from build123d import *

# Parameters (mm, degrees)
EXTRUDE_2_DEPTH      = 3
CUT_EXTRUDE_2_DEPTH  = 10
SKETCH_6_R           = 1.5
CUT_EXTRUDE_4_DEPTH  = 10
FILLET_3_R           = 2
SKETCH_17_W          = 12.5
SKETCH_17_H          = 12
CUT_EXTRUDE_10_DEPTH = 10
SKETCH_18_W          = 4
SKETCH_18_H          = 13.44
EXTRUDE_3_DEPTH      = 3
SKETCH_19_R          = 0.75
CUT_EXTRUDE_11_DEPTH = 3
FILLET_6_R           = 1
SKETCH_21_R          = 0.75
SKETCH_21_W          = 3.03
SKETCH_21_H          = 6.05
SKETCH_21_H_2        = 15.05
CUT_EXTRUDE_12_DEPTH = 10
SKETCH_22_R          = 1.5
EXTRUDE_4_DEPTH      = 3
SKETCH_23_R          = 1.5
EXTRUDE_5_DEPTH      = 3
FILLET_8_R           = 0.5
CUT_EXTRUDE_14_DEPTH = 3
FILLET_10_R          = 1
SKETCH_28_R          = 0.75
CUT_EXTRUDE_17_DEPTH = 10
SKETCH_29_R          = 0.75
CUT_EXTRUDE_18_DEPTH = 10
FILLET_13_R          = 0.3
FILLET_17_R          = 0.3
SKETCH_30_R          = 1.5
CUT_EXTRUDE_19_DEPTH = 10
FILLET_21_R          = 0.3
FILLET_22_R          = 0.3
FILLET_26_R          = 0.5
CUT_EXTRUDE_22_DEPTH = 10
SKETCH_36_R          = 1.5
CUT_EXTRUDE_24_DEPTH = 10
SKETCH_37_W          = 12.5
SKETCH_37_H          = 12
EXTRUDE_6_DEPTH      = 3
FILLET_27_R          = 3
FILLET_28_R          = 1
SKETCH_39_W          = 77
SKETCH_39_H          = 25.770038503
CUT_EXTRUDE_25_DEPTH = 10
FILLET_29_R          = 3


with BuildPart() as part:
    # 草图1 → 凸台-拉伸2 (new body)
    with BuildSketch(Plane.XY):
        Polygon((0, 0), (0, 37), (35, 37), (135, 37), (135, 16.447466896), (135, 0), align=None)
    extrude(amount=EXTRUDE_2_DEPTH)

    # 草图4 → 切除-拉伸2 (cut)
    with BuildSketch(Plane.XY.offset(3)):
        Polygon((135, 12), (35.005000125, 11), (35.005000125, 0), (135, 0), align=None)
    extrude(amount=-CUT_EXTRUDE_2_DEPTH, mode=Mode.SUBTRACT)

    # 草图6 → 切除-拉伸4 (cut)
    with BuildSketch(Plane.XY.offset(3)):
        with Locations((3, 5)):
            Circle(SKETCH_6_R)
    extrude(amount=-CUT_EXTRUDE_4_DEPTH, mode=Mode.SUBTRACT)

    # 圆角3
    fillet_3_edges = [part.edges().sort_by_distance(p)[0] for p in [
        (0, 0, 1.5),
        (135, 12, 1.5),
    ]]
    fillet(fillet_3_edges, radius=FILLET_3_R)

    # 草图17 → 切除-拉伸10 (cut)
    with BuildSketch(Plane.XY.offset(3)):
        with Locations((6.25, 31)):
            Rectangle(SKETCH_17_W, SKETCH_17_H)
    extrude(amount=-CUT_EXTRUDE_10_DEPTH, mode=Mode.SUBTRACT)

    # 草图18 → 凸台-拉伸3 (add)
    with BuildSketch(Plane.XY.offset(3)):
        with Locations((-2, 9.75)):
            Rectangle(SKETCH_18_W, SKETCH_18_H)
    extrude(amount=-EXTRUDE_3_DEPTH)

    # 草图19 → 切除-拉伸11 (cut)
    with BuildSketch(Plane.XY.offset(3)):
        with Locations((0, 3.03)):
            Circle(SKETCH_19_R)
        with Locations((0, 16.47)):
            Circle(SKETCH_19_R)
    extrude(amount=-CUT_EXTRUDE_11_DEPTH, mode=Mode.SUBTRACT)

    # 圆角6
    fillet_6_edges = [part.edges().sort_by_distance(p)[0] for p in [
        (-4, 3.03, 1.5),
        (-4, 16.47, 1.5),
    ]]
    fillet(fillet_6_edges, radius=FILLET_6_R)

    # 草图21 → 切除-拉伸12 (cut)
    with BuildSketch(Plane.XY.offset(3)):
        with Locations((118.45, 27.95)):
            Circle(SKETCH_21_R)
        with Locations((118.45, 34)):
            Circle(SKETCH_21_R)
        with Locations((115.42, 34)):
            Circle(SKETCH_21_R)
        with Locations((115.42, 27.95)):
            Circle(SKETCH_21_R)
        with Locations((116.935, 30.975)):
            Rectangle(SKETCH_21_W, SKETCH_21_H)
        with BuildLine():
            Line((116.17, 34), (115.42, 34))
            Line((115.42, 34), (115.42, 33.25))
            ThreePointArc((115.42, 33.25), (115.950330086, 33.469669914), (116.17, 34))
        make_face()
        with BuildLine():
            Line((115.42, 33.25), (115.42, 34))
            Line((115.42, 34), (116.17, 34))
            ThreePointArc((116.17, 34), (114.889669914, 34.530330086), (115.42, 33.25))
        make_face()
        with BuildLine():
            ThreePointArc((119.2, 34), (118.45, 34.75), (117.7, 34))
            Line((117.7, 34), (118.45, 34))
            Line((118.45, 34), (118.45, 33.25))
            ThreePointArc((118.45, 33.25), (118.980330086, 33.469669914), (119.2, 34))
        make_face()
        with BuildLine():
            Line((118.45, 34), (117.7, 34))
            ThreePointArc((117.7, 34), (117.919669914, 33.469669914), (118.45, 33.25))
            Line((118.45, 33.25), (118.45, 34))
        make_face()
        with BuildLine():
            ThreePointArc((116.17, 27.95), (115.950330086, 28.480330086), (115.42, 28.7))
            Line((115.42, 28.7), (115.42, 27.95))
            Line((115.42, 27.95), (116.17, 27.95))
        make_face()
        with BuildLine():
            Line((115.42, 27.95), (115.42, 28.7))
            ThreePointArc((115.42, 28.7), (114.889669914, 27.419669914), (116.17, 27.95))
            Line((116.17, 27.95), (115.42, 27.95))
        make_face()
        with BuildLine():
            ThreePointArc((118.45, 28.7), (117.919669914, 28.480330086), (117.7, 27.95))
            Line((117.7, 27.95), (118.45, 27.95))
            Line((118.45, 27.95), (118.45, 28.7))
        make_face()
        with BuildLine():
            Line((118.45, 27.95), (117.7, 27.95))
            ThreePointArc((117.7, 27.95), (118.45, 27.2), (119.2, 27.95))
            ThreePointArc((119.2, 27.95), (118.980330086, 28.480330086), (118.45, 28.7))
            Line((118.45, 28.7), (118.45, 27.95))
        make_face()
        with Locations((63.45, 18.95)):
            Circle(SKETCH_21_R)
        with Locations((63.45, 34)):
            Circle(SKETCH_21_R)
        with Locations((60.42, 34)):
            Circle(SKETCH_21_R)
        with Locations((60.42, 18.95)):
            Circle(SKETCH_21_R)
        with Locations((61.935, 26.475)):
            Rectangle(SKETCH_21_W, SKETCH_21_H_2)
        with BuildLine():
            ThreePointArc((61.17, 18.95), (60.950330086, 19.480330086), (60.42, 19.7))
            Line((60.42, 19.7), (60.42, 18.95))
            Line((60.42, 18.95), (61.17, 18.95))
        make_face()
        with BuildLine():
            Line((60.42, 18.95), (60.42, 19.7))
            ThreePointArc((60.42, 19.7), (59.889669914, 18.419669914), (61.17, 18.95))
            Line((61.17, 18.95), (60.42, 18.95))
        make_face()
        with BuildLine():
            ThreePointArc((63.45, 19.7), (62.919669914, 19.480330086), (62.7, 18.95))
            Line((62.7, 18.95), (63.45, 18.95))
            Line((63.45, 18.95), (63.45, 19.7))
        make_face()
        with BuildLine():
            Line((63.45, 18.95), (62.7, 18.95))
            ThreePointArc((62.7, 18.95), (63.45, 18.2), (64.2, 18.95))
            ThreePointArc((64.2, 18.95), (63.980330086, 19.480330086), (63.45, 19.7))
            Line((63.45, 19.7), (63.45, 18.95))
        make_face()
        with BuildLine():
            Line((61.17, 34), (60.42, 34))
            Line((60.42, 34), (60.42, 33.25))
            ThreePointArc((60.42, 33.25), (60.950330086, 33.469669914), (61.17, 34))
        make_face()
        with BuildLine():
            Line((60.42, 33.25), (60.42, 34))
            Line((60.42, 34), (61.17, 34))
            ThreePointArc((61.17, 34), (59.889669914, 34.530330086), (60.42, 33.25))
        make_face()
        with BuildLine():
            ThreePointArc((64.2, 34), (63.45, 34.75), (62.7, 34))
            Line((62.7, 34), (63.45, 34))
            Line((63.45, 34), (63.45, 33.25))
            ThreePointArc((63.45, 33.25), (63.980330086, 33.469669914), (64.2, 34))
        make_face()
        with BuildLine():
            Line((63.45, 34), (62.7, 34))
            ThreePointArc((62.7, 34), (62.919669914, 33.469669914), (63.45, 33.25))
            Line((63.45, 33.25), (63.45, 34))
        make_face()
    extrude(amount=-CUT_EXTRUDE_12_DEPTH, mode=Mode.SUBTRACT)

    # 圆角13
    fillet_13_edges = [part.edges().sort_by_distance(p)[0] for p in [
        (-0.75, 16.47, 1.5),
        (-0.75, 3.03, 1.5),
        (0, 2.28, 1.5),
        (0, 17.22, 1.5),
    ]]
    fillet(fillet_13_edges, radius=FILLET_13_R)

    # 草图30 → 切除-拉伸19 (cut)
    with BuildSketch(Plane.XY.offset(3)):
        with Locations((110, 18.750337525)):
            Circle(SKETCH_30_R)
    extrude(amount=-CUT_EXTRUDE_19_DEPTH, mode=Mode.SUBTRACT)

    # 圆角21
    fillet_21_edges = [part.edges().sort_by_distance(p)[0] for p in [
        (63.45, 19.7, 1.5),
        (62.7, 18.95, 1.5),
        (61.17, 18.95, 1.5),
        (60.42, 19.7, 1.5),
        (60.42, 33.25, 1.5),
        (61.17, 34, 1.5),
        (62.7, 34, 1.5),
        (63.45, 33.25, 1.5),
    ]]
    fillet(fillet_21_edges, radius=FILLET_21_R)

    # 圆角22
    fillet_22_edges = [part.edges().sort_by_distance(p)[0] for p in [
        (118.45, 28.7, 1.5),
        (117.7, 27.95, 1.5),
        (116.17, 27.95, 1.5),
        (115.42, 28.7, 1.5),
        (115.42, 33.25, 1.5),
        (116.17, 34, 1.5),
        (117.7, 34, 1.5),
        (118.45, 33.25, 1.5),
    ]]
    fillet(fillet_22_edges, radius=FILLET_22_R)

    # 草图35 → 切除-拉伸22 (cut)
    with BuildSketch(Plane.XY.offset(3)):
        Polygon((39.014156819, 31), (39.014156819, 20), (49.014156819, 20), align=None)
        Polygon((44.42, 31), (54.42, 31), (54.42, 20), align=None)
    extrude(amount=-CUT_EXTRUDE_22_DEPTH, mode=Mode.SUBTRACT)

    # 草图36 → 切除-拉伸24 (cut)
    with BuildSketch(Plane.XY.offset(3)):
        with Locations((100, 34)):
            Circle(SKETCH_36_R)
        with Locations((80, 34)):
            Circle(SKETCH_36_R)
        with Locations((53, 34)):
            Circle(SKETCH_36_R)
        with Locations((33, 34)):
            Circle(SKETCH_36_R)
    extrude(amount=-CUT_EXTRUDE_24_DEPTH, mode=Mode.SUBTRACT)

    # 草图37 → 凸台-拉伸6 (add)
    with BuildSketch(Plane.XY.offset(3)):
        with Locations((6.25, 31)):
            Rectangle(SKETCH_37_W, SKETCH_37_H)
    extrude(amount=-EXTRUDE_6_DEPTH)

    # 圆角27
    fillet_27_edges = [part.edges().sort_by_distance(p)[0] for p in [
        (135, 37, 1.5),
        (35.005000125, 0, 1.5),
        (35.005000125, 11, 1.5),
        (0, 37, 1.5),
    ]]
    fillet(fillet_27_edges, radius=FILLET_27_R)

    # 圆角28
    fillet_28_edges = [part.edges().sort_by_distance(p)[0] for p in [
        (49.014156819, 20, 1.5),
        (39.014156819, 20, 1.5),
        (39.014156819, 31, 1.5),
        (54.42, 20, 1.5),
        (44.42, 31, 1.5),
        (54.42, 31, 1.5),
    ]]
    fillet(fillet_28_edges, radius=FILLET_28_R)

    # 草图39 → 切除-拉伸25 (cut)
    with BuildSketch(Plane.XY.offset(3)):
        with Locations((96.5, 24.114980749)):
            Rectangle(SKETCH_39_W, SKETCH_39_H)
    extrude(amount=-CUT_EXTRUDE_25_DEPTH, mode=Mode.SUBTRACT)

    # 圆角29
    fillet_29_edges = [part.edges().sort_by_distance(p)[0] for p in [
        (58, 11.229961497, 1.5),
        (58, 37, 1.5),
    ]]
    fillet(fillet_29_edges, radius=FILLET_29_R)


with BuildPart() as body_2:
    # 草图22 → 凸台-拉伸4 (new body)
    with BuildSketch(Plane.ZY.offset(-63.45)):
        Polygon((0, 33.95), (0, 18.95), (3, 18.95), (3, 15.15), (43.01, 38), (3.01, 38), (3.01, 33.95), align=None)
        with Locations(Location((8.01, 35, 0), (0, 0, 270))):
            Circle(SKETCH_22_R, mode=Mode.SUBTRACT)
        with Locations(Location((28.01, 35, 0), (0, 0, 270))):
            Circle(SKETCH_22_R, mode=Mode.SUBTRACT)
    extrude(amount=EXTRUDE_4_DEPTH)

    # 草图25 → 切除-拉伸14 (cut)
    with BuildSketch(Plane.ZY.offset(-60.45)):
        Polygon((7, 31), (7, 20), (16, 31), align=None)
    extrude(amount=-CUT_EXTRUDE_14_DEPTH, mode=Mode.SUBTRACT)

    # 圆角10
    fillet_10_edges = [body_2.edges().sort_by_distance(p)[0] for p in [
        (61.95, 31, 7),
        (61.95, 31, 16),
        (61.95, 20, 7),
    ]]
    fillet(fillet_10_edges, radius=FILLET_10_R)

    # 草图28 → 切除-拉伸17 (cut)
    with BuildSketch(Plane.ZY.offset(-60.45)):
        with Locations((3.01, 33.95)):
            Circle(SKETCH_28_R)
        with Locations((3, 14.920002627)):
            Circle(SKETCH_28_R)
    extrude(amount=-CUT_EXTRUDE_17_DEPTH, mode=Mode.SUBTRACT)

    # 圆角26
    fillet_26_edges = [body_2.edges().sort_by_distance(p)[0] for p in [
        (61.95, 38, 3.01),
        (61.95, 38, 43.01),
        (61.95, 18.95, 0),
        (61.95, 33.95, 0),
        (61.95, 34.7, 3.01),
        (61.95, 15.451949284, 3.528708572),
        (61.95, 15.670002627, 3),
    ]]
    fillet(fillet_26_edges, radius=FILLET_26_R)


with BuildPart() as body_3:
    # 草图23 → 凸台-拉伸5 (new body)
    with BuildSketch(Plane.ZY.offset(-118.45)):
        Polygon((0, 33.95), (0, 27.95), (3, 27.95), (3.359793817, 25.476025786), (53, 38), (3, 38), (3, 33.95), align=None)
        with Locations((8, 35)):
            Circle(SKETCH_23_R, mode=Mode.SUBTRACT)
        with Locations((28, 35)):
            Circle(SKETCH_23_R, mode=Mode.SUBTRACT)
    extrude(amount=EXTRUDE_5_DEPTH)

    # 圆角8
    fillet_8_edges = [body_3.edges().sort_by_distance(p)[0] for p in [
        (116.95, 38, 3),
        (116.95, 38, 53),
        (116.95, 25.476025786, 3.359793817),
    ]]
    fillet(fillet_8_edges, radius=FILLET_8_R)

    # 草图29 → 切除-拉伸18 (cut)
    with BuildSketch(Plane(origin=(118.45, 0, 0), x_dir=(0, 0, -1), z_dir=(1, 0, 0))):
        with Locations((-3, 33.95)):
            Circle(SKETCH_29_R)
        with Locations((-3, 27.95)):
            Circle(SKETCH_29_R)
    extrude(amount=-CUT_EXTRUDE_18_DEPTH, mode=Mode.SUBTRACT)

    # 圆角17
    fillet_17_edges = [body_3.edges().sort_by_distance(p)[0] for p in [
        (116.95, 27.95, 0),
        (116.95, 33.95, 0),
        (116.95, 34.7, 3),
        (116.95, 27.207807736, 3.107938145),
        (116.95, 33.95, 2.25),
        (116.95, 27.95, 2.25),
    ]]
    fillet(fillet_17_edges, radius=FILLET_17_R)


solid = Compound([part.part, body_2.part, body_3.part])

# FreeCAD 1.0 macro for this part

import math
import FreeCAD as App
import Part
import Sketcher
from FreeCAD import Vector


def edges_at(feature, points):
    """Names of the edges that pass closest to the given points."""
    edges = feature.Shape.Edges
    near = lambda p: min(range(len(edges)), key=lambda i: edges[i].distToShape(Part.Vertex(*p))[0])
    return sorted({f"Edge{near(p) + 1}" for p in points})

doc = App.newDocument("Part")
body = doc.addObject("PartDesign::Body", "Body")

# Sketch on XY plane
sketch1 = doc.addObject("Sketcher::SketchObject", "Sketch")
body.addObject(sketch1)
sketch1.AttachmentSupport = (doc.XY_Plane, [""])
sketch1.MapMode = "FlatFace"
sketch1.addGeometry([
    Part.LineSegment(Vector(0, 37, 0), Vector(0, 0, 0)),
    Part.LineSegment(Vector(0, 0, 0), Vector(135, 0, 0)),
    Part.LineSegment(Vector(135, 0, 0), Vector(135, 37, 0)),
    Part.LineSegment(Vector(135, 37, 0), Vector(0, 37, 0)),
], False)
sketch1.addConstraint([
    Sketcher.Constraint("Coincident", 0, 2, 1, 1),
    Sketcher.Constraint("Coincident", 1, 2, 2, 1),
    Sketcher.Constraint("Coincident", 2, 2, 3, 1),
    Sketcher.Constraint("Coincident", 3, 2, 0, 1),
    Sketcher.Constraint("Vertical", 0),
    Sketcher.Constraint("Horizontal", 1),
    Sketcher.Constraint("Vertical", 2),
    Sketcher.Constraint("Horizontal", 3),
    Sketcher.Constraint("Coincident", 0, 2, -1, 1),
    Sketcher.Constraint("DistanceX", 1, 1, 1, 2, 135.0),
    Sketcher.Constraint("DistanceY", 0, 2, 0, 1, 37.0),
])
pad1 = doc.addObject("PartDesign::Pad", "Pad")
body.addObject(pad1)
pad1.Profile = sketch1
pad1.Length = 3

# Sketch on XY plane
sketch2 = doc.addObject("Sketcher::SketchObject", "Sketch001")
body.addObject(sketch2)
sketch2.AttachmentSupport = (doc.XY_Plane, [""])
sketch2.MapMode = "FlatFace"
sketch2.AttachmentOffset = App.Placement(Vector(0, 0, 3), App.Rotation())
sketch2.addGeometry([
    Part.LineSegment(Vector(135, 12, 0), Vector(35, 11, 0)),
    Part.LineSegment(Vector(35, 11, 0), Vector(35, 0, 0)),
    Part.LineSegment(Vector(35, 0, 0), Vector(135, 0, 0)),
    Part.LineSegment(Vector(135, 0, 0), Vector(135, 12, 0)),
], False)
sketch2.addConstraint([
    Sketcher.Constraint("Coincident", 0, 2, 1, 1),
    Sketcher.Constraint("Coincident", 1, 2, 2, 1),
    Sketcher.Constraint("Coincident", 2, 2, 3, 1),
    Sketcher.Constraint("Coincident", 3, 2, 0, 1),
    Sketcher.Constraint("Vertical", 1),
    Sketcher.Constraint("Horizontal", 2),
    Sketcher.Constraint("Vertical", 3),
    Sketcher.Constraint("PointOnObject", 1, 2, -1),
    Sketcher.Constraint("DistanceY", 1, 2, 1, 1, 11.0),
    Sketcher.Constraint("DistanceY", 3, 1, 3, 2, 12.0),
    Sketcher.Constraint("Distance", 0, 100.0),
    Sketcher.Constraint("DistanceX", -1, 1, 2, 2, 135.0),
])
pocket1 = doc.addObject("PartDesign::Pocket", "Pocket")
body.addObject(pocket1)
pocket1.Profile = sketch2
pocket1.Length = 10

# Sketch on XY plane
sketch3 = doc.addObject("Sketcher::SketchObject", "Sketch002")
body.addObject(sketch3)
sketch3.AttachmentSupport = (doc.XY_Plane, [""])
sketch3.MapMode = "FlatFace"
sketch3.AttachmentOffset = App.Placement(Vector(0, 0, 3), App.Rotation())
sketch3.addGeometry(Part.Circle(Vector(3, 5, 0), Vector(0, 0, 1), 1.5), False)
sketch3.addConstraint([
    Sketcher.Constraint("Diameter", 0, 3.0),
    Sketcher.Constraint("DistanceX", -1, 1, 0, 3, 3.0),
    Sketcher.Constraint("DistanceY", -1, 1, 0, 3, 5.0),
])
pocket2 = doc.addObject("PartDesign::Pocket", "Pocket001")
body.addObject(pocket2)
pocket2.Profile = sketch3
pocket2.Length = 10
doc.recompute()

fillet = doc.addObject("PartDesign::Fillet", "Fillet")
body.addObject(fillet)
fillet.Base = (pocket2, edges_at(pocket2, [(0, 0, 1.5), (135, 12, 1.5)]))
fillet.Radius = 2

# Sketch on XY plane
sketch4 = doc.addObject("Sketcher::SketchObject", "Sketch003")
body.addObject(sketch4)
sketch4.AttachmentSupport = (doc.XY_Plane, [""])
sketch4.MapMode = "FlatFace"
sketch4.AttachmentOffset = App.Placement(Vector(0, 0, 3), App.Rotation())
sketch4.addGeometry([
    Part.LineSegment(Vector(0, 37, 0), Vector(0, 25, 0)),
    Part.LineSegment(Vector(0, 25, 0), Vector(12, 25, 0)),
    Part.LineSegment(Vector(12, 25, 0), Vector(12, 37, 0)),
    Part.LineSegment(Vector(12, 37, 0), Vector(0, 37, 0)),
], False)
sketch4.addConstraint([
    Sketcher.Constraint("Coincident", 0, 2, 1, 1),
    Sketcher.Constraint("Coincident", 1, 2, 2, 1),
    Sketcher.Constraint("Coincident", 2, 2, 3, 1),
    Sketcher.Constraint("Coincident", 3, 2, 0, 1),
    Sketcher.Constraint("Vertical", 0),
    Sketcher.Constraint("Horizontal", 1),
    Sketcher.Constraint("Vertical", 2),
    Sketcher.Constraint("Horizontal", 3),
    Sketcher.Constraint("PointOnObject", 0, 2, -2),
    Sketcher.Constraint("DistanceY", 0, 2, 0, 1, 12.0),
    Sketcher.Constraint("DistanceX", 1, 1, 1, 2, 12.5),
    Sketcher.Constraint("DistanceY", -1, 1, 0, 2, 25.0),
])
pocket3 = doc.addObject("PartDesign::Pocket", "Pocket002")
body.addObject(pocket3)
pocket3.Profile = sketch4
pocket3.Length = 10

# Sketch on XY plane
sketch5 = doc.addObject("Sketcher::SketchObject", "Sketch004")
body.addObject(sketch5)
sketch5.AttachmentSupport = (doc.XY_Plane, [""])
sketch5.MapMode = "FlatFace"
sketch5.AttachmentOffset = App.Placement(Vector(0, 0, 3), App.Rotation())
sketch5.addGeometry([
    Part.LineSegment(Vector(-4, 16.5, 0), Vector(-4, 3, 0)),
    Part.LineSegment(Vector(-4, 3, 0), Vector(0, 3, 0)),
    Part.LineSegment(Vector(0, 3, 0), Vector(0, 16.5, 0)),
    Part.LineSegment(Vector(0, 16.5, 0), Vector(-4, 16.5, 0)),
], False)
sketch5.addConstraint([
    Sketcher.Constraint("Coincident", 0, 2, 1, 1),
    Sketcher.Constraint("Coincident", 1, 2, 2, 1),
    Sketcher.Constraint("Coincident", 2, 2, 3, 1),
    Sketcher.Constraint("Coincident", 3, 2, 0, 1),
    Sketcher.Constraint("Vertical", 0),
    Sketcher.Constraint("Horizontal", 1),
    Sketcher.Constraint("Vertical", 2),
    Sketcher.Constraint("Horizontal", 3),
    Sketcher.Constraint("PointOnObject", 1, 2, -2),
    Sketcher.Constraint("DistanceX", 1, 1, 1, 2, 4.0),
    Sketcher.Constraint("DistanceY", 0, 2, 0, 1, 13.44),
    Sketcher.Constraint("DistanceY", -1, 1, 0, 2, 3.03),
])
pad2 = doc.addObject("PartDesign::Pad", "Pad001")
body.addObject(pad2)
pad2.Profile = sketch5
pad2.Length = 3
pad2.Reversed = True

# Sketch on XY plane
sketch6 = doc.addObject("Sketcher::SketchObject", "Sketch005")
body.addObject(sketch6)
sketch6.AttachmentSupport = (doc.XY_Plane, [""])
sketch6.MapMode = "FlatFace"
sketch6.AttachmentOffset = App.Placement(Vector(0, 0, 3), App.Rotation())
sketch6.addGeometry([
    Part.Circle(Vector(0, 3, 0), Vector(0, 0, 1), 0.8),
    Part.Circle(Vector(0, 16.5, 0), Vector(0, 0, 1), 0.8),
], False)
sketch6.addConstraint([
    Sketcher.Constraint("Equal", 0, 1),
    Sketcher.Constraint("PointOnObject", 0, 3, -2),
    Sketcher.Constraint("PointOnObject", 1, 3, -2),
    Sketcher.Constraint("Diameter", 0, 1.5),
    Sketcher.Constraint("DistanceY", -1, 1, 0, 3, 3.03),
    Sketcher.Constraint("DistanceY", -1, 1, 1, 3, 16.47),
])
pocket4 = doc.addObject("PartDesign::Pocket", "Pocket003")
body.addObject(pocket4)
pocket4.Profile = sketch6
pocket4.Length = 3
doc.recompute()

fillet2 = doc.addObject("PartDesign::Fillet", "Fillet001")
body.addObject(fillet2)
fillet2.Base = (pocket4, edges_at(pocket4, [(-4, 3.03, 1.5), (-4, 16.47, 1.5)]))
fillet2.Radius = 1

# Sketch on XY plane
sketch7 = doc.addObject("Sketcher::SketchObject", "Sketch006")
body.addObject(sketch7)
sketch7.AttachmentSupport = (doc.XY_Plane, [""])
sketch7.MapMode = "FlatFace"
sketch7.AttachmentOffset = App.Placement(Vector(0, 0, 3), App.Rotation())
sketch7.addGeometry([
    Part.LineSegment(Vector(115.4, 33.2, 0), Vector(115.4, 28.7, 0)),  # 0
    Part.ArcOfCircle(Part.Circle(Vector(115.4, 27.9, 0), Vector(0, 0, 1), 0.8), math.radians(90), math.radians(360)),  # 1
    Part.LineSegment(Vector(116.2, 27.9, 0), Vector(117.7, 27.9, 0)),  # 2
    Part.ArcOfCircle(Part.Circle(Vector(118.5, 27.9, 0), Vector(0, 0, 1), 0.8), math.radians(180), math.radians(450)),  # 3
    Part.LineSegment(Vector(118.5, 28.7, 0), Vector(118.5, 33.2, 0)),  # 4
    Part.ArcOfCircle(Part.Circle(Vector(118.5, 34, 0), Vector(0, 0, 1), 0.8), math.radians(-90), math.radians(180)),  # 5
    Part.LineSegment(Vector(117.7, 34, 0), Vector(116.2, 34, 0)),  # 6
    Part.ArcOfCircle(Part.Circle(Vector(115.4, 34, 0), Vector(0, 0, 1), 0.8), math.radians(0), math.radians(270)),  # 7
    Part.LineSegment(Vector(60.4, 33.2, 0), Vector(60.4, 19.7, 0)),  # 8
    Part.ArcOfCircle(Part.Circle(Vector(60.4, 18.9, 0), Vector(0, 0, 1), 0.8), math.radians(90), math.radians(360)),  # 9
    Part.LineSegment(Vector(61.2, 18.9, 0), Vector(62.7, 18.9, 0)),  # 10
    Part.ArcOfCircle(Part.Circle(Vector(63.5, 18.9, 0), Vector(0, 0, 1), 0.8), math.radians(180), math.radians(450)),  # 11
    Part.LineSegment(Vector(63.5, 19.7, 0), Vector(63.5, 33.2, 0)),  # 12
    Part.ArcOfCircle(Part.Circle(Vector(63.5, 34, 0), Vector(0, 0, 1), 0.8), math.radians(-90), math.radians(180)),  # 13
    Part.LineSegment(Vector(62.7, 34, 0), Vector(61.2, 34, 0)),  # 14
    Part.ArcOfCircle(Part.Circle(Vector(60.4, 34, 0), Vector(0, 0, 1), 0.8), math.radians(0), math.radians(270)),  # 15
], False)
sketch7.addConstraint([
    Sketcher.Constraint("Coincident", 0, 2, 1, 1),
    Sketcher.Constraint("Coincident", 1, 2, 2, 1),
    Sketcher.Constraint("Coincident", 2, 2, 3, 1),
    Sketcher.Constraint("Coincident", 3, 2, 4, 1),
    Sketcher.Constraint("Coincident", 4, 2, 5, 1),
    Sketcher.Constraint("Coincident", 5, 2, 6, 1),
    Sketcher.Constraint("Coincident", 6, 2, 7, 1),
    Sketcher.Constraint("Coincident", 7, 2, 0, 1),
    Sketcher.Constraint("Coincident", 8, 2, 9, 1),
    Sketcher.Constraint("Coincident", 9, 2, 10, 1),
    Sketcher.Constraint("Coincident", 10, 2, 11, 1),
    Sketcher.Constraint("Coincident", 11, 2, 12, 1),
    Sketcher.Constraint("Coincident", 12, 2, 13, 1),
    Sketcher.Constraint("Coincident", 13, 2, 14, 1),
    Sketcher.Constraint("Coincident", 14, 2, 15, 1),
    Sketcher.Constraint("Coincident", 15, 2, 8, 1),
    Sketcher.Constraint("Vertical", 0),
    Sketcher.Constraint("Horizontal", 2),
    Sketcher.Constraint("Vertical", 4),
    Sketcher.Constraint("Horizontal", 6),
    Sketcher.Constraint("Vertical", 8),
    Sketcher.Constraint("Horizontal", 10),
    Sketcher.Constraint("Vertical", 12),
    Sketcher.Constraint("Horizontal", 14),
    Sketcher.Constraint("Equal", 1, 3),
    Sketcher.Constraint("Equal", 3, 5),
    Sketcher.Constraint("Equal", 5, 7),
    Sketcher.Constraint("Equal", 7, 9),
    Sketcher.Constraint("Equal", 9, 11),
    Sketcher.Constraint("Equal", 11, 13),
    Sketcher.Constraint("Equal", 13, 15),
    Sketcher.Constraint("Horizontal", 1, 3, 3, 3),
    Sketcher.Constraint("Horizontal", 5, 3, 7, 3),
    Sketcher.Constraint("Horizontal", 9, 3, 11, 3),
    Sketcher.Constraint("Horizontal", 7, 3, 13, 3),
    Sketcher.Constraint("Horizontal", 13, 3, 15, 3),
    Sketcher.Constraint("Horizontal", 3, 3, 1, 2),
    Sketcher.Constraint("Horizontal", 15, 3, 5, 2),
    Sketcher.Constraint("Horizontal", 11, 3, 9, 2),
    Sketcher.Constraint("Horizontal", 6, 2, 13, 2),
    Sketcher.Constraint("Vertical", 3, 3, 5, 3),
    Sketcher.Constraint("Vertical", 1, 3, 7, 3),
    Sketcher.Constraint("Vertical", 11, 3, 13, 3),
    Sketcher.Constraint("Vertical", 9, 3, 15, 3),
    Sketcher.Constraint("Vertical", 7, 3, 0, 2),
    Sketcher.Constraint("Vertical", 5, 3, 3, 2),
    Sketcher.Constraint("Vertical", 15, 3, 8, 2),
    Sketcher.Constraint("Vertical", 13, 3, 11, 2),
    Sketcher.Constraint("Equal", 6, 10),
    Sketcher.Constraint("Radius", 1, 0.75),
    Sketcher.Constraint("DistanceY", -1, 1, 5, 3, 34.0),
    Sketcher.Constraint("DistanceX", 9, 3, 1, 3, 55.0),
    Sketcher.Constraint("DistanceY", 9, 3, 1, 3, 9.0),
    Sketcher.Constraint("DistanceX", 2, 1, 2, 2, 1.53),
    Sketcher.Constraint("DistanceY", 0, 2, 0, 1, 4.55),
    Sketcher.Constraint("DistanceX", -1, 1, 2, 2, 117.7),
])
pocket5 = doc.addObject("PartDesign::Pocket", "Pocket004")
body.addObject(pocket5)
pocket5.Profile = sketch7
pocket5.Length = 10
doc.recompute()

fillet3 = doc.addObject("PartDesign::Fillet", "Fillet002")
body.addObject(fillet3)
fillet3.Base = (pocket5, edges_at(pocket5, [
    (-0.75, 16.47, 1.5),
    (-0.75, 3.03, 1.5),
    (0, 2.28, 1.5),
    (0, 17.22, 1.5),
]))
fillet3.Radius = 0.3

# Sketch on XY plane
sketch8 = doc.addObject("Sketcher::SketchObject", "Sketch007")
body.addObject(sketch8)
sketch8.AttachmentSupport = (doc.XY_Plane, [""])
sketch8.MapMode = "FlatFace"
sketch8.AttachmentOffset = App.Placement(Vector(0, 0, 3), App.Rotation())
sketch8.addGeometry(Part.Circle(Vector(110, 18.8, 0), Vector(0, 0, 1), 1.5), False)
sketch8.addConstraint([
    Sketcher.Constraint("Diameter", 0, 3.0),
    Sketcher.Constraint("DistanceX", -1, 1, 0, 3, 110.0),
    Sketcher.Constraint("DistanceY", -1, 1, 0, 3, 18.750338),
])
pocket6 = doc.addObject("PartDesign::Pocket", "Pocket005")
body.addObject(pocket6)
pocket6.Profile = sketch8
pocket6.Length = 10
doc.recompute()

fillet4 = doc.addObject("PartDesign::Fillet", "Fillet003")
body.addObject(fillet4)
fillet4.Base = (pocket6, edges_at(pocket6, [
    (63.45, 19.7, 1.5),
    (62.7, 18.95, 1.5),
    (61.17, 18.95, 1.5),
    (60.42, 19.7, 1.5),
    (60.42, 33.25, 1.5),
    (61.17, 34, 1.5),
    (62.7, 34, 1.5),
    (63.45, 33.25, 1.5),
]))
fillet4.Radius = 0.3
doc.recompute()

fillet5 = doc.addObject("PartDesign::Fillet", "Fillet004")
body.addObject(fillet5)
fillet5.Base = (fillet4, edges_at(fillet4, [
    (118.45, 28.7, 1.5),
    (117.7, 27.95, 1.5),
    (116.17, 27.95, 1.5),
    (115.42, 28.7, 1.5),
    (115.42, 33.25, 1.5),
    (116.17, 34, 1.5),
    (117.7, 34, 1.5),
    (118.45, 33.25, 1.5),
]))
fillet5.Radius = 0.3

# Sketch on XY plane
sketch9 = doc.addObject("Sketcher::SketchObject", "Sketch008")
body.addObject(sketch9)
sketch9.AttachmentSupport = (doc.XY_Plane, [""])
sketch9.MapMode = "FlatFace"
sketch9.AttachmentOffset = App.Placement(Vector(0, 0, 3), App.Rotation())
sketch9.addGeometry([
    Part.LineSegment(Vector(39, 31, 0), Vector(39, 20, 0)),  # 0
    Part.LineSegment(Vector(39, 20, 0), Vector(49, 20, 0)),  # 1
    Part.LineSegment(Vector(49, 20, 0), Vector(39, 31, 0)),  # 2
    Part.LineSegment(Vector(54, 31, 0), Vector(44, 31, 0)),  # 3
    Part.LineSegment(Vector(44, 31, 0), Vector(54, 20, 0)),  # 4
    Part.LineSegment(Vector(54, 20, 0), Vector(54, 31, 0)),  # 5
], False)
sketch9.addConstraint([
    Sketcher.Constraint("Coincident", 0, 2, 1, 1),
    Sketcher.Constraint("Coincident", 1, 2, 2, 1),
    Sketcher.Constraint("Coincident", 2, 2, 0, 1),
    Sketcher.Constraint("Coincident", 3, 2, 4, 1),
    Sketcher.Constraint("Coincident", 4, 2, 5, 1),
    Sketcher.Constraint("Coincident", 5, 2, 3, 1),
    Sketcher.Constraint("Vertical", 0),
    Sketcher.Constraint("Horizontal", 1),
    Sketcher.Constraint("Horizontal", 3),
    Sketcher.Constraint("Vertical", 5),
    Sketcher.Constraint("Parallel", 2, 4),
    Sketcher.Constraint("Horizontal", 2, 2, 3, 2),
    Sketcher.Constraint("Horizontal", 1, 2, 4, 2),
    Sketcher.Constraint("DistanceX", 1, 1, 1, 2, 10.0),
    Sketcher.Constraint("DistanceY", 0, 2, 0, 1, 11.0),
    Sketcher.Constraint("DistanceY", -1, 1, 0, 2, 20.0),
    Sketcher.Constraint("DistanceX", -1, 1, 3, 2, 44.42),
    Sketcher.Constraint("DistanceX", -1, 1, 0, 2, 39.014157),
])
pocket7 = doc.addObject("PartDesign::Pocket", "Pocket006")
body.addObject(pocket7)
pocket7.Profile = sketch9
pocket7.Length = 10

# Sketch on XY plane
sketch10 = doc.addObject("Sketcher::SketchObject", "Sketch009")
body.addObject(sketch10)
sketch10.AttachmentSupport = (doc.XY_Plane, [""])
sketch10.MapMode = "FlatFace"
sketch10.AttachmentOffset = App.Placement(Vector(0, 0, 3), App.Rotation())
sketch10.addGeometry([
    Part.Circle(Vector(100, 34, 0), Vector(0, 0, 1), 1.5),
    Part.Circle(Vector(80, 34, 0), Vector(0, 0, 1), 1.5),
    Part.Circle(Vector(53, 34, 0), Vector(0, 0, 1), 1.5),
    Part.Circle(Vector(33, 34, 0), Vector(0, 0, 1), 1.5),
], False)
sketch10.addConstraint([
    Sketcher.Constraint("Equal", 0, 1),
    Sketcher.Constraint("Equal", 1, 2),
    Sketcher.Constraint("Equal", 2, 3),
    Sketcher.Constraint("Horizontal", 0, 3, 1, 3),
    Sketcher.Constraint("Horizontal", 1, 3, 2, 3),
    Sketcher.Constraint("Horizontal", 2, 3, 3, 3),
    Sketcher.Constraint("Diameter", 0, 3.0),
    Sketcher.Constraint("DistanceX", -1, 1, 0, 3, 100.0),
    Sketcher.Constraint("DistanceY", -1, 1, 0, 3, 34.0),
    Sketcher.Constraint("DistanceX", -1, 1, 1, 3, 80.0),
    Sketcher.Constraint("DistanceX", -1, 1, 2, 3, 53.0),
    Sketcher.Constraint("DistanceX", -1, 1, 3, 3, 33.0),
])
pocket8 = doc.addObject("PartDesign::Pocket", "Pocket007")
body.addObject(pocket8)
pocket8.Profile = sketch10
pocket8.Length = 10

# Sketch on XY plane
sketch11 = doc.addObject("Sketcher::SketchObject", "Sketch010")
body.addObject(sketch11)
sketch11.AttachmentSupport = (doc.XY_Plane, [""])
sketch11.MapMode = "FlatFace"
sketch11.AttachmentOffset = App.Placement(Vector(0, 0, 3), App.Rotation())
sketch11.addGeometry([
    Part.LineSegment(Vector(0, 37, 0), Vector(0, 25, 0)),
    Part.LineSegment(Vector(0, 25, 0), Vector(12, 25, 0)),
    Part.LineSegment(Vector(12, 25, 0), Vector(12, 37, 0)),
    Part.LineSegment(Vector(12, 37, 0), Vector(0, 37, 0)),
], False)
sketch11.addConstraint([
    Sketcher.Constraint("Coincident", 0, 2, 1, 1),
    Sketcher.Constraint("Coincident", 1, 2, 2, 1),
    Sketcher.Constraint("Coincident", 2, 2, 3, 1),
    Sketcher.Constraint("Coincident", 3, 2, 0, 1),
    Sketcher.Constraint("Vertical", 0),
    Sketcher.Constraint("Horizontal", 1),
    Sketcher.Constraint("Vertical", 2),
    Sketcher.Constraint("Horizontal", 3),
    Sketcher.Constraint("PointOnObject", 0, 2, -2),
    Sketcher.Constraint("DistanceY", 0, 2, 0, 1, 12.0),
    Sketcher.Constraint("DistanceX", 1, 1, 1, 2, 12.5),
    Sketcher.Constraint("DistanceY", -1, 1, 0, 2, 25.0),
])
pad3 = doc.addObject("PartDesign::Pad", "Pad002")
body.addObject(pad3)
pad3.Profile = sketch11
pad3.Length = 3
pad3.Reversed = True
doc.recompute()

fillet6 = doc.addObject("PartDesign::Fillet", "Fillet005")
body.addObject(fillet6)
fillet6.Base = (pad3, edges_at(pad3, [
    (135, 37, 1.5),
    (35.005, 0, 1.5),
    (35.005, 11, 1.5),
    (0, 37, 1.5),
]))
fillet6.Radius = 3
doc.recompute()

fillet7 = doc.addObject("PartDesign::Fillet", "Fillet006")
body.addObject(fillet7)
fillet7.Base = (fillet6, edges_at(fillet6, [
    (49.014, 20, 1.5),
    (39.014, 20, 1.5),
    (39.014, 31, 1.5),
    (54.42, 20, 1.5),
    (44.42, 31, 1.5),
    (54.42, 31, 1.5),
]))
fillet7.Radius = 1

# Sketch on XY plane
sketch12 = doc.addObject("Sketcher::SketchObject", "Sketch011")
body.addObject(sketch12)
sketch12.AttachmentSupport = (doc.XY_Plane, [""])
sketch12.MapMode = "FlatFace"
sketch12.AttachmentOffset = App.Placement(Vector(0, 0, 3), App.Rotation())
sketch12.addGeometry([
    Part.LineSegment(Vector(58, 37, 0), Vector(58, 11, 0)),
    Part.LineSegment(Vector(58, 11, 0), Vector(135, 11, 0)),
    Part.LineSegment(Vector(135, 11, 0), Vector(135, 37, 0)),
    Part.LineSegment(Vector(135, 37, 0), Vector(58, 37, 0)),
], False)
sketch12.addConstraint([
    Sketcher.Constraint("Coincident", 0, 2, 1, 1),
    Sketcher.Constraint("Coincident", 1, 2, 2, 1),
    Sketcher.Constraint("Coincident", 2, 2, 3, 1),
    Sketcher.Constraint("Coincident", 3, 2, 0, 1),
    Sketcher.Constraint("Vertical", 0),
    Sketcher.Constraint("Horizontal", 1),
    Sketcher.Constraint("Vertical", 2),
    Sketcher.Constraint("Horizontal", 3),
    Sketcher.Constraint("DistanceX", 1, 1, 1, 2, 77.0),
    Sketcher.Constraint("DistanceX", -1, 1, 0, 2, 58.0),
    Sketcher.Constraint("DistanceY", -1, 1, 2, 2, 37.0),
    Sketcher.Constraint("DistanceY", 0, 2, 0, 1, 25.770039),
])
pocket9 = doc.addObject("PartDesign::Pocket", "Pocket008")
body.addObject(pocket9)
pocket9.Profile = sketch12
pocket9.Length = 10
doc.recompute()

fillet8 = doc.addObject("PartDesign::Fillet", "Fillet007")
body.addObject(fillet8)
fillet8.Base = (pocket9, edges_at(pocket9, [(58, 11.23, 1.5), (58, 37, 1.5)]))
fillet8.Radius = 3
body2 = doc.addObject("PartDesign::Body", "Body001")

# Sketch on YZ plane
sketch13 = doc.addObject("Sketcher::SketchObject", "Sketch012")
body2.addObject(sketch13)
sketch13.AttachmentSupport = (doc.getObject("YZ_Plane001"), [""])
sketch13.MapMode = "FlatFace"
sketch13.AttachmentOffset = App.Placement(Vector(0, 0, 63.45), App.Rotation())
sketch13.addGeometry([
    Part.LineSegment(Vector(34, 0, 0), Vector(18.9, 0, 0)),  # 0
    Part.LineSegment(Vector(18.9, 0, 0), Vector(18.9, 3, 0)),  # 1
    Part.LineSegment(Vector(18.9, 3, 0), Vector(15.2, 3, 0)),  # 2
    Part.LineSegment(Vector(15.2, 3, 0), Vector(38, 43, 0)),  # 3
    Part.LineSegment(Vector(38, 43, 0), Vector(38, 3, 0)),  # 4
    Part.LineSegment(Vector(38, 3, 0), Vector(34, 3, 0)),  # 5
    Part.LineSegment(Vector(34, 3, 0), Vector(34, 0, 0)),  # 6
    Part.Circle(Vector(35, 8, 0), Vector(0, 0, 1), 1.5),  # 7
    Part.Circle(Vector(35, 28, 0), Vector(0, 0, 1), 1.5),  # 8
], False)
sketch13.addConstraint([
    Sketcher.Constraint("Coincident", 0, 2, 1, 1),
    Sketcher.Constraint("Coincident", 1, 2, 2, 1),
    Sketcher.Constraint("Coincident", 2, 2, 3, 1),
    Sketcher.Constraint("Coincident", 3, 2, 4, 1),
    Sketcher.Constraint("Coincident", 4, 2, 5, 1),
    Sketcher.Constraint("Coincident", 5, 2, 6, 1),
    Sketcher.Constraint("Coincident", 6, 2, 0, 1),
    Sketcher.Constraint("Horizontal", 0),
    Sketcher.Constraint("Vertical", 1),
    Sketcher.Constraint("Horizontal", 2),
    Sketcher.Constraint("Vertical", 4),
    Sketcher.Constraint("Horizontal", 5),
    Sketcher.Constraint("Vertical", 6),
    Sketcher.Constraint("Equal", 7, 8),
    Sketcher.Constraint("PointOnObject", 0, 2, -1),
    Sketcher.Constraint("Vertical", 7, 3, 8, 3),
    Sketcher.Constraint("Diameter", 7, 3.0),
    Sketcher.Constraint("DistanceX", 0, 2, 0, 1, 15.0),
    Sketcher.Constraint("DistanceY", 1, 1, 1, 2, 3.0),
    Sketcher.Constraint("DistanceY", 4, 2, 4, 1, 40.0),
    Sketcher.Constraint("DistanceX", 2, 2, 2, 1, 3.8),
    Sketcher.Constraint("DistanceX", -1, 1, 7, 3, 35.0),
    Sketcher.Constraint("DistanceX", -1, 1, 3, 2, 38.0),
    Sketcher.Constraint("DistanceY", 7, 3, 8, 3, 20.0),
    Sketcher.Constraint("DistanceY", 8, 3, 3, 2, 15.0),
    Sketcher.Constraint("DistanceX", 5, 2, 5, 1, 4.05),
    Sketcher.Constraint("DistanceY", 6, 2, 6, 1, 3.01),
])
pad4 = doc.addObject("PartDesign::Pad", "Pad003")
body2.addObject(pad4)
pad4.Profile = sketch13
pad4.Length = 3
pad4.Reversed = True

# Sketch on YZ plane
sketch14 = doc.addObject("Sketcher::SketchObject", "Sketch013")
body2.addObject(sketch14)
sketch14.AttachmentSupport = (doc.getObject("YZ_Plane001"), [""])
sketch14.MapMode = "FlatFace"
sketch14.AttachmentOffset = App.Placement(Vector(0, 0, 60.45), App.Rotation())
sketch14.addGeometry([
    Part.LineSegment(Vector(31, 7, 0), Vector(20, 7, 0)),
    Part.LineSegment(Vector(20, 7, 0), Vector(31, 16, 0)),
    Part.LineSegment(Vector(31, 16, 0), Vector(31, 7, 0)),
], False)
sketch14.addConstraint([
    Sketcher.Constraint("Coincident", 0, 2, 1, 1),
    Sketcher.Constraint("Coincident", 1, 2, 2, 1),
    Sketcher.Constraint("Coincident", 2, 2, 0, 1),
    Sketcher.Constraint("Horizontal", 0),
    Sketcher.Constraint("Vertical", 2),
    Sketcher.Constraint("DistanceX", 0, 2, 0, 1, 11.0),
    Sketcher.Constraint("DistanceY", 2, 2, 2, 1, 9.0),
    Sketcher.Constraint("DistanceX", -1, 1, 0, 2, 20.0),
    Sketcher.Constraint("DistanceY", -1, 1, 0, 2, 7.0),
])
pocket10 = doc.addObject("PartDesign::Pocket", "Pocket009")
body2.addObject(pocket10)
pocket10.Profile = sketch14
pocket10.Length = 3
pocket10.Reversed = True
doc.recompute()

fillet9 = doc.addObject("PartDesign::Fillet", "Fillet008")
body2.addObject(fillet9)
fillet9.Base = (pocket10, edges_at(pocket10, [(61.95, 31, 7), (61.95, 31, 16), (61.95, 20, 7)]))
fillet9.Radius = 1

# Sketch on YZ plane
sketch15 = doc.addObject("Sketcher::SketchObject", "Sketch014")
body2.addObject(sketch15)
sketch15.AttachmentSupport = (doc.getObject("YZ_Plane001"), [""])
sketch15.MapMode = "FlatFace"
sketch15.AttachmentOffset = App.Placement(Vector(0, 0, 60.45), App.Rotation())
sketch15.addGeometry([
    Part.Circle(Vector(34, 3, 0), Vector(0, 0, 1), 0.8),
    Part.Circle(Vector(14.9, 3, 0), Vector(0, 0, 1), 0.8),
], False)
sketch15.addConstraint([
    Sketcher.Constraint("Equal", 0, 1),
    Sketcher.Constraint("Diameter", 0, 1.5),
    Sketcher.Constraint("DistanceY", -1, 1, 1, 3, 3.0),
    Sketcher.Constraint("DistanceX", -1, 1, 0, 3, 33.95),
    Sketcher.Constraint("DistanceY", -1, 1, 0, 3, 3.01),
    Sketcher.Constraint("DistanceX", -1, 1, 1, 3, 14.920003),
])
pocket11 = doc.addObject("PartDesign::Pocket", "Pocket010")
body2.addObject(pocket11)
pocket11.Profile = sketch15
pocket11.Length = 10
pocket11.Reversed = True
doc.recompute()

fillet10 = doc.addObject("PartDesign::Fillet", "Fillet009")
body2.addObject(fillet10)
fillet10.Base = (pocket11, edges_at(pocket11, [
    (61.95, 38, 3.01),
    (61.95, 38, 43.01),
    (61.95, 18.95, 0),
    (61.95, 33.95, 0),
    (61.95, 34.7, 3.01),
    (61.95, 15.452, 3.529),
    (61.95, 15.67, 3),
]))
fillet10.Radius = 0.5
body3 = doc.addObject("PartDesign::Body", "Body002")

# Sketch on YZ plane
sketch16 = doc.addObject("Sketcher::SketchObject", "Sketch015")
body3.addObject(sketch16)
sketch16.AttachmentSupport = (doc.getObject("YZ_Plane002"), [""])
sketch16.MapMode = "FlatFace"
sketch16.AttachmentOffset = App.Placement(Vector(0, 0, 118.45), App.Rotation())
sketch16.addGeometry([
    Part.LineSegment(Vector(34, 0, 0), Vector(27.9, 0, 0)),  # 0
    Part.LineSegment(Vector(27.9, 0, 0), Vector(27.9, 3, 0)),  # 1
    Part.LineSegment(Vector(27.9, 3, 0), Vector(25.5, 3.4, 0)),  # 2
    Part.LineSegment(Vector(25.5, 3.4, 0), Vector(38, 53, 0)),  # 3
    Part.LineSegment(Vector(38, 53, 0), Vector(38, 3, 0)),  # 4
    Part.LineSegment(Vector(38, 3, 0), Vector(34, 3, 0)),  # 5
    Part.LineSegment(Vector(34, 3, 0), Vector(34, 0, 0)),  # 6
    Part.Circle(Vector(35, 8, 0), Vector(0, 0, 1), 1.5),  # 7
    Part.Circle(Vector(35, 28, 0), Vector(0, 0, 1), 1.5),  # 8
], False)
sketch16.addConstraint([
    Sketcher.Constraint("Coincident", 0, 2, 1, 1),
    Sketcher.Constraint("Coincident", 1, 2, 2, 1),
    Sketcher.Constraint("Coincident", 2, 2, 3, 1),
    Sketcher.Constraint("Coincident", 3, 2, 4, 1),
    Sketcher.Constraint("Coincident", 4, 2, 5, 1),
    Sketcher.Constraint("Coincident", 5, 2, 6, 1),
    Sketcher.Constraint("Coincident", 6, 2, 0, 1),
    Sketcher.Constraint("Horizontal", 0),
    Sketcher.Constraint("Vertical", 1),
    Sketcher.Constraint("Vertical", 4),
    Sketcher.Constraint("Horizontal", 5),
    Sketcher.Constraint("Vertical", 6),
    Sketcher.Constraint("Equal", 7, 8),
    Sketcher.Constraint("PointOnObject", 0, 2, -1),
    Sketcher.Constraint("Horizontal", 1, 2, 4, 2),
    Sketcher.Constraint("Vertical", 7, 3, 8, 3),
    Sketcher.Constraint("Diameter", 7, 3.0),
    Sketcher.Constraint("DistanceX", 0, 2, 0, 1, 6.0),
    Sketcher.Constraint("DistanceY", 1, 1, 1, 2, 3.0),
    Sketcher.Constraint("DistanceY", 4, 2, 4, 1, 50.0),
    Sketcher.Constraint("DistanceX", -1, 1, 7, 3, 35.0),
    Sketcher.Constraint("DistanceY", -1, 1, 7, 3, 8.0),
    Sketcher.Constraint("DistanceY", -1, 1, 8, 3, 28.0),
    Sketcher.Constraint("DistanceX", -1, 1, 3, 2, 38.0),
    Sketcher.Constraint("Distance", 2, 2.5),
    Sketcher.Constraint("DistanceX", 5, 2, 5, 1, 4.05),
    Sketcher.Constraint("Distance", 3, 51.195703),
])
pad5 = doc.addObject("PartDesign::Pad", "Pad004")
body3.addObject(pad5)
pad5.Profile = sketch16
pad5.Length = 3
pad5.Reversed = True
doc.recompute()

fillet11 = doc.addObject("PartDesign::Fillet", "Fillet010")
body3.addObject(fillet11)
fillet11.Base = (pad5, edges_at(pad5, [(116.95, 38, 3), (116.95, 38, 53), (116.95, 25.476, 3.36)]))
fillet11.Radius = 0.5

# Sketch on YZ plane
sketch17 = doc.addObject("Sketcher::SketchObject", "Sketch016")
body3.addObject(sketch17)
sketch17.AttachmentSupport = (doc.getObject("YZ_Plane002"), [""])
sketch17.MapMode = "FlatFace"
sketch17.AttachmentOffset = App.Placement(Vector(0, 0, 118.45), App.Rotation())
sketch17.addGeometry([
    Part.Circle(Vector(34, 3, 0), Vector(0, 0, 1), 0.8),
    Part.Circle(Vector(27.9, 3, 0), Vector(0, 0, 1), 0.8),
], False)
sketch17.addConstraint([
    Sketcher.Constraint("Equal", 0, 1),
    Sketcher.Constraint("Horizontal", 0, 3, 1, 3),
    Sketcher.Constraint("Diameter", 0, 1.5),
    Sketcher.Constraint("DistanceY", -1, 1, 0, 3, 3.0),
    Sketcher.Constraint("DistanceX", 1, 3, 0, 3, 6.0),
    Sketcher.Constraint("DistanceX", -1, 1, 0, 3, 33.95),
])
pocket12 = doc.addObject("PartDesign::Pocket", "Pocket011")
body3.addObject(pocket12)
pocket12.Profile = sketch17
pocket12.Length = 10
doc.recompute()

fillet12 = doc.addObject("PartDesign::Fillet", "Fillet011")
body3.addObject(fillet12)
fillet12.Base = (pocket12, edges_at(pocket12, [
    (116.95, 27.95, 0),
    (116.95, 33.95, 0),
    (116.95, 34.7, 3),
    (116.95, 27.208, 3.108),
    (116.95, 33.95, 2.25),
    (116.95, 27.95, 2.25),
]))
fillet12.Radius = 0.3

doc.recompute()
